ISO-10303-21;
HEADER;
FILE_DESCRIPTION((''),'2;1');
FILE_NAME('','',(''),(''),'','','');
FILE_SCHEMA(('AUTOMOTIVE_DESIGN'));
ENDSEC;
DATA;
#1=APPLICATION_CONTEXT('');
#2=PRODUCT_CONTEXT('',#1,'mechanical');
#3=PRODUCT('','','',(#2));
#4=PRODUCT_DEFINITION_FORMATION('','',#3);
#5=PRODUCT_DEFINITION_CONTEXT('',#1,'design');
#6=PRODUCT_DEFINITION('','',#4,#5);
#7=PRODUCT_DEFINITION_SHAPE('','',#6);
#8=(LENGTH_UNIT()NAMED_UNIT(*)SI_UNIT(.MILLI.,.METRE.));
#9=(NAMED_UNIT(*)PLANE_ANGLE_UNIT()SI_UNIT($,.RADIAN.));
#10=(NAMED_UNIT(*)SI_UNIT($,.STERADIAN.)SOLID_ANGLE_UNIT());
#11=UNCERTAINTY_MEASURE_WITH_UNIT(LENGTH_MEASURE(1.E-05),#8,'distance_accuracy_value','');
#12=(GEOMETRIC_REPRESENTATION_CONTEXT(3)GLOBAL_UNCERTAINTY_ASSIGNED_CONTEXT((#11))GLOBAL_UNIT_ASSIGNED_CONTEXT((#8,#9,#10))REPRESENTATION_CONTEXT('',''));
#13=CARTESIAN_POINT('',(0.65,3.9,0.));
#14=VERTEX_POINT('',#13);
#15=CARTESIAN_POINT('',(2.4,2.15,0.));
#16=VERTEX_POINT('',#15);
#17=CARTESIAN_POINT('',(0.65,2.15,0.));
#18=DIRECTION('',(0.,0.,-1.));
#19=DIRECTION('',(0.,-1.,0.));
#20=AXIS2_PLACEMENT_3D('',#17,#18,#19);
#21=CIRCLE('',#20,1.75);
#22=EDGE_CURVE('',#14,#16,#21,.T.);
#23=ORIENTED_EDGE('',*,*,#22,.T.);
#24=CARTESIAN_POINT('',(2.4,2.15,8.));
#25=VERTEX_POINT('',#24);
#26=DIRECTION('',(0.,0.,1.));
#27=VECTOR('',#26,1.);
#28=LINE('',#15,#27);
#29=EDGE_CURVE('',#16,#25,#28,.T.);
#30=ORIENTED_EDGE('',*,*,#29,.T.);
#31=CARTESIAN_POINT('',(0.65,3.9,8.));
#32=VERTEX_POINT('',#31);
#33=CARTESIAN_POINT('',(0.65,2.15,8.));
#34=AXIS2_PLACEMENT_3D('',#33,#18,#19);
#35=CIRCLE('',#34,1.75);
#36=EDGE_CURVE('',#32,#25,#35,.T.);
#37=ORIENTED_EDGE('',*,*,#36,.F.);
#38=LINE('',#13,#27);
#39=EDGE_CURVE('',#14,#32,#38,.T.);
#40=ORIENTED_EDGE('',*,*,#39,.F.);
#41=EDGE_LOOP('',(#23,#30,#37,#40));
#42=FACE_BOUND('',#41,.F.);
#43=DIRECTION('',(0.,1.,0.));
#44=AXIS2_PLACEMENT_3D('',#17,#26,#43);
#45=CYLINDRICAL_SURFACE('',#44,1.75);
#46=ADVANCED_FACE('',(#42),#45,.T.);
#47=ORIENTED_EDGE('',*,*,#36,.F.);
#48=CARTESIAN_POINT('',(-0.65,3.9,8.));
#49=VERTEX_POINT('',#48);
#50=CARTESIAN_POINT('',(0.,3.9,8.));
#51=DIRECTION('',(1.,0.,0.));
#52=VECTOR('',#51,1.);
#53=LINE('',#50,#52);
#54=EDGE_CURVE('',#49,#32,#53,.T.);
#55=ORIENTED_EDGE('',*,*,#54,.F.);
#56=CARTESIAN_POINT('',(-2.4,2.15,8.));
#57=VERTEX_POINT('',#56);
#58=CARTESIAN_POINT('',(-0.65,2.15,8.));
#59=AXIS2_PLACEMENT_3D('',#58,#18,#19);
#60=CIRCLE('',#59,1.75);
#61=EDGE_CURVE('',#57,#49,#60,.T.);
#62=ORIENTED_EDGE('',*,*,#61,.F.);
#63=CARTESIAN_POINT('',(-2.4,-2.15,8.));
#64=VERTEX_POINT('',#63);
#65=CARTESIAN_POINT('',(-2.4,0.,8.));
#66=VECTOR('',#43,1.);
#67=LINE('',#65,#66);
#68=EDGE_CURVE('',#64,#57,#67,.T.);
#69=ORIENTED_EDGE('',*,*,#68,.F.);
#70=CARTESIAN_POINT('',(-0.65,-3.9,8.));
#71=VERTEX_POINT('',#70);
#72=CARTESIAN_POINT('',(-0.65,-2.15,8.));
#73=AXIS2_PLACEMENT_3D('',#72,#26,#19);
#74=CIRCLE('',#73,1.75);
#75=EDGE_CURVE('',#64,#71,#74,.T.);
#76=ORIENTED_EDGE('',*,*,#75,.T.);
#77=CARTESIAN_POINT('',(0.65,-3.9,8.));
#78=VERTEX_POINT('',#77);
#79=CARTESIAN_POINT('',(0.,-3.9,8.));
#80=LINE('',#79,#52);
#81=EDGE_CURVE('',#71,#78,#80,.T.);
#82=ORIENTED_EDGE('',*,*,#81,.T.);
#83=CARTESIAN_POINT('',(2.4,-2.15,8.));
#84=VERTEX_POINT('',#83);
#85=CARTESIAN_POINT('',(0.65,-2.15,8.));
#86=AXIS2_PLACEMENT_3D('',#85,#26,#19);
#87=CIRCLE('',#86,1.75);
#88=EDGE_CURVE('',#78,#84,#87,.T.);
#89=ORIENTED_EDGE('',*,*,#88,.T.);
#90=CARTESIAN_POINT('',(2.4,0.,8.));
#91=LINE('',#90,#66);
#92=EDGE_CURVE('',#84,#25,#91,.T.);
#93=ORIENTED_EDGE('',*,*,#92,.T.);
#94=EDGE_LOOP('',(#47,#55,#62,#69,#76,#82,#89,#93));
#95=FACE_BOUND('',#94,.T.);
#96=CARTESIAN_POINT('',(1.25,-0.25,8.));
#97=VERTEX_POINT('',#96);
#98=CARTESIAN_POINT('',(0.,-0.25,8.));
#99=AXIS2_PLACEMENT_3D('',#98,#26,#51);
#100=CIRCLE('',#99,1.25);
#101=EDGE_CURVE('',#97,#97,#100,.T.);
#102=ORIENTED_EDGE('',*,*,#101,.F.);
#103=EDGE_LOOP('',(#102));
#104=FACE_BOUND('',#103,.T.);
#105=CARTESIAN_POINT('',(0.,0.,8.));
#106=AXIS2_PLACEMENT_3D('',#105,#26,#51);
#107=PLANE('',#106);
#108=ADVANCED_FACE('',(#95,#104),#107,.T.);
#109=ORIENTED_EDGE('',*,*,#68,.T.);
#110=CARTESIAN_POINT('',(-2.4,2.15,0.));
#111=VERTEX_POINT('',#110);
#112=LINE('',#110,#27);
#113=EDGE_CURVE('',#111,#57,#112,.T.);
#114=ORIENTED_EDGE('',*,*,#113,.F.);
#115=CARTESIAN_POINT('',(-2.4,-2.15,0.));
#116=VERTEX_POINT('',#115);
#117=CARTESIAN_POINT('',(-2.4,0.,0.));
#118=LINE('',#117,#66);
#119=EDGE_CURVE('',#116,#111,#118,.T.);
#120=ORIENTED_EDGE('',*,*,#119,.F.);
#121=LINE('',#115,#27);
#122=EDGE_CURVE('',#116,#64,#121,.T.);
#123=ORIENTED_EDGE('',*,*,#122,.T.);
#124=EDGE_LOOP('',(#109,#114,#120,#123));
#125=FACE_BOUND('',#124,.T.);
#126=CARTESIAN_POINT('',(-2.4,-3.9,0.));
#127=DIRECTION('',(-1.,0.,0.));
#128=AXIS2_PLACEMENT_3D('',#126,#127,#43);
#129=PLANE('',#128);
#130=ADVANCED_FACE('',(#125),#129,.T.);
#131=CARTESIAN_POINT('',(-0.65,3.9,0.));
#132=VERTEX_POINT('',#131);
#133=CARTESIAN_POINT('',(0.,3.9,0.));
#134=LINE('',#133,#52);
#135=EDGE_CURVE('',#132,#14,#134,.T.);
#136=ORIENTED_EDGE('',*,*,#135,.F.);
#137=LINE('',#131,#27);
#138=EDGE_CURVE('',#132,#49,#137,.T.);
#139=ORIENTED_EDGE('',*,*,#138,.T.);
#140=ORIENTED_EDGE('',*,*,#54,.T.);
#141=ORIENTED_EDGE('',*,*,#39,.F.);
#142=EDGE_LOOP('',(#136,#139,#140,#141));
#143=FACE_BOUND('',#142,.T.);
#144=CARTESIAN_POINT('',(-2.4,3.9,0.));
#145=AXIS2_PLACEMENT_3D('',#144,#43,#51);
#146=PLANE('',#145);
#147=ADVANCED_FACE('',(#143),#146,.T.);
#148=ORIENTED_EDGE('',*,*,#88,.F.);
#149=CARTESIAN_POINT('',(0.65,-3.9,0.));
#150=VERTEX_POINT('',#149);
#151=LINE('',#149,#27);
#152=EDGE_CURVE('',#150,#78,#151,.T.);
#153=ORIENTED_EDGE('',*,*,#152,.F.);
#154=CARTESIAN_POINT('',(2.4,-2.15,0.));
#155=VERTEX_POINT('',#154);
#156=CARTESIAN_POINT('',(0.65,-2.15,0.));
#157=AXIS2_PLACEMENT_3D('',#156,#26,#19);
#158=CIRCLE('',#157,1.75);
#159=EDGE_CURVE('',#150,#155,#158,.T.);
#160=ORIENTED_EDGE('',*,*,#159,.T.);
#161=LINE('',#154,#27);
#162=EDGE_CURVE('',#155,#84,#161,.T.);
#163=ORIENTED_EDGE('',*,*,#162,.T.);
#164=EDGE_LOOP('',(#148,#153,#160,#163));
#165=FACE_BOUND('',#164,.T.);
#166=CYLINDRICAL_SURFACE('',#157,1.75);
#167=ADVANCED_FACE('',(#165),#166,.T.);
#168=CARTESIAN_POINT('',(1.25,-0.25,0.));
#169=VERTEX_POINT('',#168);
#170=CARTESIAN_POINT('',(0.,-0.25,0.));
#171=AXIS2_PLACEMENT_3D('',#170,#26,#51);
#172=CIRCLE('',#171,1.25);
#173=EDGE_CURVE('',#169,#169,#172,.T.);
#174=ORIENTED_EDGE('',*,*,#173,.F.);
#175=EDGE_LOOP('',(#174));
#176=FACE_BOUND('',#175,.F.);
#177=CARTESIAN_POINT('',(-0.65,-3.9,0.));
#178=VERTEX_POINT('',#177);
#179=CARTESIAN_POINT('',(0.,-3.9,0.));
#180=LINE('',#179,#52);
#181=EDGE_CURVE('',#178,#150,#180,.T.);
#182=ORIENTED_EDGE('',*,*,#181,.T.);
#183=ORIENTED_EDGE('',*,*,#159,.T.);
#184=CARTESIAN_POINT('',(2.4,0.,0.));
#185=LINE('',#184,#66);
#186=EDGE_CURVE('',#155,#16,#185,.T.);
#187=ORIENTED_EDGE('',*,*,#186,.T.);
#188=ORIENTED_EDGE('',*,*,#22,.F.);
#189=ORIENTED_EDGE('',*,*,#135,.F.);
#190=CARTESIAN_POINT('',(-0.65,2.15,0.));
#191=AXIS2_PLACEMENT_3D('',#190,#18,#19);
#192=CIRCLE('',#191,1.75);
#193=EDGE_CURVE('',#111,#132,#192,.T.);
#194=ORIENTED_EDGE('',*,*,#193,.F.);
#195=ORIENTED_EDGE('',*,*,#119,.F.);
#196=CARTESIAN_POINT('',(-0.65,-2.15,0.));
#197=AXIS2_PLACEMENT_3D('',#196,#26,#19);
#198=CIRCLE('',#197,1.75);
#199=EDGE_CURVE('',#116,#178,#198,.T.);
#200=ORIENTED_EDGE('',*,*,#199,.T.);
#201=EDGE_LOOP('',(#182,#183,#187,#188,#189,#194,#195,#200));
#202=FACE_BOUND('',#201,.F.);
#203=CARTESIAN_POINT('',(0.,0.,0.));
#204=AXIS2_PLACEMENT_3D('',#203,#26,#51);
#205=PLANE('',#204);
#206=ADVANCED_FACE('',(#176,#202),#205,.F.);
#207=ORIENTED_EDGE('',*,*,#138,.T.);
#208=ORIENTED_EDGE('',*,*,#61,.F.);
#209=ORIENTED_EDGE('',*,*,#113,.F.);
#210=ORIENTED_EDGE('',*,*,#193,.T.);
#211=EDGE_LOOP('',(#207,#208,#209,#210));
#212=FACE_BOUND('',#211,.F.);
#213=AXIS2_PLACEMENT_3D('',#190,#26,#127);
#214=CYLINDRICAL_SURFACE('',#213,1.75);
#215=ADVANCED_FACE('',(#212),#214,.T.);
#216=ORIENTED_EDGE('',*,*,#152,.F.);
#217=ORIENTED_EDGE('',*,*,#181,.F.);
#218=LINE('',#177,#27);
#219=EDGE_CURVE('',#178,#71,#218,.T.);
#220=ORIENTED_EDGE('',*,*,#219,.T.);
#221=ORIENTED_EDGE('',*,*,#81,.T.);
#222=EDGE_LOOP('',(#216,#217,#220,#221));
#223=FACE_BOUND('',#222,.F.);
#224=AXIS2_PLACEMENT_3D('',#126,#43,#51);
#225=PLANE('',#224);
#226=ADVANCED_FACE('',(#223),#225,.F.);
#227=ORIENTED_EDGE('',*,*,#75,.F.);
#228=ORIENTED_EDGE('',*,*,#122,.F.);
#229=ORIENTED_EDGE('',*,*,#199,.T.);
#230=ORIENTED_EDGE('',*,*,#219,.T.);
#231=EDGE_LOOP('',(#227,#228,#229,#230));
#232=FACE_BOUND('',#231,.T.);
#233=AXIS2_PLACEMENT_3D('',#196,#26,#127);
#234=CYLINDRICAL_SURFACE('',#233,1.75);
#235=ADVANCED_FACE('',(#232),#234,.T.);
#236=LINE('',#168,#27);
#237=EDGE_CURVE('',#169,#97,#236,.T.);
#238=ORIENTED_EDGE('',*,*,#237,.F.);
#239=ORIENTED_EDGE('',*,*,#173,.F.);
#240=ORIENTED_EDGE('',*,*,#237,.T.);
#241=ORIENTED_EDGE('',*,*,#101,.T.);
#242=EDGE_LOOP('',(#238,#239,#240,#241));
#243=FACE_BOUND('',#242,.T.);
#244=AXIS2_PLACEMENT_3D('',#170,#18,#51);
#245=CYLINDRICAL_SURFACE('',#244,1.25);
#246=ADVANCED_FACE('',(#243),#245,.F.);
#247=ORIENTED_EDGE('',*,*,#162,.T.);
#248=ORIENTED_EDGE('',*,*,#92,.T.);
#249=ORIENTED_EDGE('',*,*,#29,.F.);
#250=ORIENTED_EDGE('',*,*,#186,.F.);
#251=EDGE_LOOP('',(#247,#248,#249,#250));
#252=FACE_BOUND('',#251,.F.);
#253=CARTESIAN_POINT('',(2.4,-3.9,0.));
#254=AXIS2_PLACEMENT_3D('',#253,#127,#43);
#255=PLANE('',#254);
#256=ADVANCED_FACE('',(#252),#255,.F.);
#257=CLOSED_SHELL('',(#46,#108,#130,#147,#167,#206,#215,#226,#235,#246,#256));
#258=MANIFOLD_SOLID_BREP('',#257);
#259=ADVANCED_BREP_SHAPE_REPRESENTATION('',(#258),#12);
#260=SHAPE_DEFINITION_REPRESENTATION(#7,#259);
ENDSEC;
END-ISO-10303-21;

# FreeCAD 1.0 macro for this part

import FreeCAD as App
import Part
import Sketcher

V = App.Vector
Q = App.Units.Quantity


def edges_at(feature, points):
    """Names of the edges that pass closest to the given points."""
    edges = feature.Shape.Edges
    near = lambda p: min(range(len(edges)), key=lambda i: edges[i].distToShape(Part.Vertex(*p))[0])
    return sorted({f"Edge{near(p) + 1}" for p in points})


def add_polygon(sketch, points):
    """Adds a closed chain of lines whose ends are joined by coincident constraints."""
    first, n = sketch.GeometryCount, len(points)
    for a, b in zip(points, points[1:] + points[:1]):
        sketch.addGeometry(Part.LineSegment(App.Vector(*a, 0), App.Vector(*b, 0)), False)
    for i in range(n):
        sketch.addConstraint(Sketcher.Constraint("Coincident", first + i, 2, first + (i + 1) % n, 1))

doc = App.newDocument("Part")
body = doc.addObject("PartDesign::Body", "Body")

sketch1 = body.newObject("Sketcher::SketchObject", "Sketch")
sketch1.AttachmentSupport = (doc.getObject("XY_Plane"), [""])
sketch1.MapMode = "FlatFace"
add_polygon(sketch1, [(-2.4, 3.9), (-2.4, -3.9), (2.4, -3.9), (2.4, 3.9)])
sketch1.addGeometry(Part.Circle(V(0, -0.2, 0), V(0, 0, 1), 1.2), False)
sketch1.addConstraint(Sketcher.Constraint("Vertical", 0))
sketch1.addConstraint(Sketcher.Constraint("Horizontal", 1))
sketch1.addConstraint(Sketcher.Constraint("Vertical", 2))
sketch1.addConstraint(Sketcher.Constraint("Horizontal", 3))
sketch1.addConstraint(Sketcher.Constraint("Symmetric", 0, 2, 2, 2, -1, 1))
sketch1.addConstraint(Sketcher.Constraint("PointOnObject", 4, 3, -2))
sketch1.addConstraint(Sketcher.Constraint("Diameter", 4, Q("2.5 mm")))
sketch1.addConstraint(Sketcher.Constraint("DistanceX", 1, 1, 1, 2, Q("4.8 mm")))
sketch1.addConstraint(Sketcher.Constraint("DistanceY", 0, 2, 0, 1, Q("7.8 mm")))
sketch1.addConstraint(Sketcher.Constraint("DistanceY", 4, 3, -1, 1, Q("0.25 mm")))
pad1 = body.newObject("PartDesign::Pad", "Pad")
pad1.Profile = sketch1
pad1.Length = 8
doc.recompute()

fillet = body.newObject("PartDesign::Fillet", "Fillet")
fillet.Base = (pad1, edges_at(pad1, [
    (-2.4, -3.9, 4),
    (2.4, -3.9, 4),
    (2.4, 3.9, 4),
    (-2.4, 3.9, 4),
]))
fillet.Radius = 1.75

doc.recompute()
